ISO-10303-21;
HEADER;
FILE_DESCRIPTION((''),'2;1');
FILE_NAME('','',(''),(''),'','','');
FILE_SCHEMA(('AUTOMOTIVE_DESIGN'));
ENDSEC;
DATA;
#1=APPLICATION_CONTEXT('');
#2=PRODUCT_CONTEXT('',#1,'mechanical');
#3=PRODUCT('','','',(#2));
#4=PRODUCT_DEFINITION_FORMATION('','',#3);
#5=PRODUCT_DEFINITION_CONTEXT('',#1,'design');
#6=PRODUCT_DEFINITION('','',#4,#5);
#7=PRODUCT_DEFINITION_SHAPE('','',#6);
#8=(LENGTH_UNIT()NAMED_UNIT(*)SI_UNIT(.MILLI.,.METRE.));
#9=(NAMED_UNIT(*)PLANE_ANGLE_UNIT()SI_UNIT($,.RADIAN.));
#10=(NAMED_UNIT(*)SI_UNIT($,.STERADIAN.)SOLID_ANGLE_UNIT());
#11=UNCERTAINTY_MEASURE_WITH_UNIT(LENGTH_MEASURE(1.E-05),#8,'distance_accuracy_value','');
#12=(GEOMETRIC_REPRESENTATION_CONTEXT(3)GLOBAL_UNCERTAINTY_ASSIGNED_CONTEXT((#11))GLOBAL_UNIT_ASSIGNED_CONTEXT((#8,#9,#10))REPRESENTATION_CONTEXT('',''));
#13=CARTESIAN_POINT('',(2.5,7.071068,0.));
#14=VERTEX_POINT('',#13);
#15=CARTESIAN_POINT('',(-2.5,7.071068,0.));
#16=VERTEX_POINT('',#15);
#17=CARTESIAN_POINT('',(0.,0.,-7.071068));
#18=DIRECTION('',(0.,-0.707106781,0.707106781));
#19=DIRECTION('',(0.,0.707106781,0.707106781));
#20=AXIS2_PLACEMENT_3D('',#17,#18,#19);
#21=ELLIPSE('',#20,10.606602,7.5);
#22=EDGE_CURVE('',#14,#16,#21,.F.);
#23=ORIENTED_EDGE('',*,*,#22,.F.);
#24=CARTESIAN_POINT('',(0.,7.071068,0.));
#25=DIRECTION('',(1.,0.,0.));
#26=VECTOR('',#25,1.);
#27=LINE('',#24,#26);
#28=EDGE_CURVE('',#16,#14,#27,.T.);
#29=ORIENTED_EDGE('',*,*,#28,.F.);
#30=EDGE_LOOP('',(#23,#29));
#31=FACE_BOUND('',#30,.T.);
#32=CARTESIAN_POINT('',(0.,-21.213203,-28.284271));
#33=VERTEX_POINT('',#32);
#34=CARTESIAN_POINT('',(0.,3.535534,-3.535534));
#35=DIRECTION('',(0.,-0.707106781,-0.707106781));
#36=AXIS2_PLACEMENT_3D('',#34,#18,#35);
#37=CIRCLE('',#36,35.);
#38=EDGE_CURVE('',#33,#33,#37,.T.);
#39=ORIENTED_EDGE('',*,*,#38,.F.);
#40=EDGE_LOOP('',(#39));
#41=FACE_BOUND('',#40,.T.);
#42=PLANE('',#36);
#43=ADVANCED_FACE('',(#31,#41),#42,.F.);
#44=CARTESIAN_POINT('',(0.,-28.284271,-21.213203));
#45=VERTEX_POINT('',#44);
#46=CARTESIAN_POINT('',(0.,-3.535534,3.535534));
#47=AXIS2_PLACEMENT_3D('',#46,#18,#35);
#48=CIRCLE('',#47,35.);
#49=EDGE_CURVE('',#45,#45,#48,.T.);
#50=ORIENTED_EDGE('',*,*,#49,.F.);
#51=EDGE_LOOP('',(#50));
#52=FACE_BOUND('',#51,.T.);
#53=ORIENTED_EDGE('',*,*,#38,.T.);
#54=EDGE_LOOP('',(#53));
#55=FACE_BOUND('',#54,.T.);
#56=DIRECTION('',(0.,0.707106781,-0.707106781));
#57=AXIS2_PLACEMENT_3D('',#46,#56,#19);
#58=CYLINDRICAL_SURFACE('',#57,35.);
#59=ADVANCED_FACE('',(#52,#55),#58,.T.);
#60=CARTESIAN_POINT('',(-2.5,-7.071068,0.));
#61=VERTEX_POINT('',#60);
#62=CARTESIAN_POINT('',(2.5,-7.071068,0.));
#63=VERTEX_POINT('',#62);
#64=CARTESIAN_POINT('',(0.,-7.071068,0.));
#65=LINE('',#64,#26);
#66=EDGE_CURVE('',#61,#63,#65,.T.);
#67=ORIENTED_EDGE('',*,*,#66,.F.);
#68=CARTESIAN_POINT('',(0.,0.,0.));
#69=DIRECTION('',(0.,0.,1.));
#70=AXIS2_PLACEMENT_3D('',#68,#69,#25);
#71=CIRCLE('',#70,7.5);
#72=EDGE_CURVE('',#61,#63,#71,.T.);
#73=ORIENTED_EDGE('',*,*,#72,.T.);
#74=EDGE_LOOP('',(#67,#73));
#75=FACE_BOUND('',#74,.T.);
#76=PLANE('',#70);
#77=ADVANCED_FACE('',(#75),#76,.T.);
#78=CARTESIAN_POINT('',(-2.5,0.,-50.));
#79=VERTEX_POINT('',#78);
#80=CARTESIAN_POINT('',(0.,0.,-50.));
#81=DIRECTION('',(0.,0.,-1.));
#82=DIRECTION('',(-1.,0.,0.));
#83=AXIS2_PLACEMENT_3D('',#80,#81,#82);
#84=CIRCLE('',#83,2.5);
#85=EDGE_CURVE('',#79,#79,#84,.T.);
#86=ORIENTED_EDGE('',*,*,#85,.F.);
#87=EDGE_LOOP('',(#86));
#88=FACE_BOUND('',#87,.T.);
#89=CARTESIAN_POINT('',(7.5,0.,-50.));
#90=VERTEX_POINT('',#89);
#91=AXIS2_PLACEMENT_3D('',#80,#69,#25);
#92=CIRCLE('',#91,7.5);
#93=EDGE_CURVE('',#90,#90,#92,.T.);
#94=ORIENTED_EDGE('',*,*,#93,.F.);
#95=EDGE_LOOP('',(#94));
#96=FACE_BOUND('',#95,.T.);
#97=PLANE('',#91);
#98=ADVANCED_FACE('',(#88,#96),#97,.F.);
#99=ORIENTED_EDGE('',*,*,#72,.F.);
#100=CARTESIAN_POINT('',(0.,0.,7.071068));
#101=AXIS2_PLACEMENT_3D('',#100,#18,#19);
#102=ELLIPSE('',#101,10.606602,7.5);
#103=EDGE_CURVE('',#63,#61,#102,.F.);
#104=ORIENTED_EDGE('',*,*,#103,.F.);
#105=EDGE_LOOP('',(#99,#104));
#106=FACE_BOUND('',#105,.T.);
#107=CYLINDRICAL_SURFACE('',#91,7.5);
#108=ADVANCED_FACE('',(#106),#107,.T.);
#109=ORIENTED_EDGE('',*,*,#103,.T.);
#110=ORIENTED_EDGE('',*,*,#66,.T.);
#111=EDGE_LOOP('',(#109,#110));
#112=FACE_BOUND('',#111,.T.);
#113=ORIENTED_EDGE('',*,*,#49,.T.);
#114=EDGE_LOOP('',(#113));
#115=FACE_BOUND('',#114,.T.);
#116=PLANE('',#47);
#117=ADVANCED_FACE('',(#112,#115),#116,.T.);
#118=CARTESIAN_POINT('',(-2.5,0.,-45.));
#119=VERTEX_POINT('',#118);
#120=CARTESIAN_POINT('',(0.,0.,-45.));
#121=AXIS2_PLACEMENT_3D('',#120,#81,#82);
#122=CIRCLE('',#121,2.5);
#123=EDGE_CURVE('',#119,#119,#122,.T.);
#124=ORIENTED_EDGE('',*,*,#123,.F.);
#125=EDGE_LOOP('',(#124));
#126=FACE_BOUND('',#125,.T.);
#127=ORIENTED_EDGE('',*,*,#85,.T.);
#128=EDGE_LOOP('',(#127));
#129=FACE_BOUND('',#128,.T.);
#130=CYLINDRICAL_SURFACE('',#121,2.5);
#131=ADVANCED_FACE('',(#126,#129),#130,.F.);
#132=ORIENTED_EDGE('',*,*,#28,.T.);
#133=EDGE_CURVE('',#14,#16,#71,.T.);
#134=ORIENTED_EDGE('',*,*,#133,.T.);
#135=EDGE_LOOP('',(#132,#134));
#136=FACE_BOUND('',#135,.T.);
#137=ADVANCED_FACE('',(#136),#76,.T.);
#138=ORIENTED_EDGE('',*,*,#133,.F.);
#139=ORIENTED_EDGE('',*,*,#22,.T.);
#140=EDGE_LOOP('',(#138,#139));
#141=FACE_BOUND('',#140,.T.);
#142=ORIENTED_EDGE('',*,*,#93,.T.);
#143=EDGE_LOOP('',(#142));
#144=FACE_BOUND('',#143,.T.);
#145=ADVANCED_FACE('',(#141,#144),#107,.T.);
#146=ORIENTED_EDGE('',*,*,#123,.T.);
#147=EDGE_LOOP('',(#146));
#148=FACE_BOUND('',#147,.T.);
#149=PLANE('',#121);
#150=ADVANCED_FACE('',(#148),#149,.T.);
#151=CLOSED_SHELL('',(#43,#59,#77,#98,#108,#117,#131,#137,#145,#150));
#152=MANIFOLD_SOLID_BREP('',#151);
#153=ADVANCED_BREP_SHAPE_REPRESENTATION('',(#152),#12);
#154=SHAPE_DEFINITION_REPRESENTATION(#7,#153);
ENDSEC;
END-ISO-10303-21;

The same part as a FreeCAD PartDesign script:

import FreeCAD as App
import Part
import Sketcher
Q = App.Units.Quantity

doc = App.newDocument("Part")
params = doc.addObject("Spreadsheet::Sheet", "Params")
for row, (alias, value) in enumerate([
    ("sketch1_diameter", "15 mm"),
    ("pad1_length", "50 mm"),
    ("sketch2_diameter", "70 mm"),
    ("pad2_length", "10 mm"),
    ("sketch3_diameter", "5 mm"),
    ("pocket1_length", "5 mm"),
], start=1):
    params.set(f"A{row}", alias)
    params.set(f"B{row}", "=" + value)
    params.setAlias(f"B{row}", alias)

body = doc.addObject("PartDesign::Body", "Body")

# Sketch on XY plane
sketch1 = doc.addObject("Sketcher::SketchObject", "Sketch")
body.addObject(sketch1)
sketch1.AttachmentSupport = (doc.XY_Plane, [""])
sketch1.MapMode = "FlatFace"
sketch1.addGeometry(Part.Circle(App.Vector(0, 0, 0), App.Vector(0, 0, 1), 8), False)
sketch1.addConstraint([
    Sketcher.Constraint("Coincident", 0, 3, -1, 1),
    Sketcher.Constraint("Diameter", 0, Q("15 mm")),
])
sketch1.setExpression("Constraints[1]", "Params.sketch1_diameter")
pad1 = doc.addObject("PartDesign::Pad", "Pad")
body.addObject(pad1)
pad1.Profile = sketch1
pad1.setExpression("Length", "Params.pad1_length")
pad1.Reversed = True

# Sketch on an angled plane
sketch2 = doc.addObject("Sketcher::SketchObject", "Sketch001")
body.addObject(sketch2)
sketch2.Placement = App.Placement(App.Vector(0, 0, 0), App.Rotation(App.Vector(1, 0, 0), App.Vector(0, 0.707106781, 0.707106781), App.Vector(0, -0.707106781, 0.707106781), "ZXY"))
sketch2.addGeometry(Part.Circle(App.Vector(0, 0, 0), App.Vector(0, 0, 1), 35), False)
sketch2.addConstraint([
    Sketcher.Constraint("Coincident", 0, 3, -1, 1),
    Sketcher.Constraint("Diameter", 0, Q("70 mm")),
])
sketch2.setExpression("Constraints[1]", "Params.sketch2_diameter")
pad2 = doc.addObject("PartDesign::Pad", "Pad001")
body.addObject(pad2)
pad2.Profile = sketch2
pad2.setExpression("Length", "Params.pad2_length")
pad2.Midplane = True

# Sketch on XY plane
sketch3 = doc.addObject("Sketcher::SketchObject", "Sketch002")
body.addObject(sketch3)
sketch3.AttachmentSupport = (doc.XY_Plane, [""])
sketch3.MapMode = "FlatFace"
sketch3.AttachmentOffset = App.Placement(App.Vector(0, 0, -50), App.Rotation())
sketch3.addGeometry(Part.Circle(App.Vector(0, 0, 0), App.Vector(0, 0, 1), 2.5), False)
sketch3.addConstraint([
    Sketcher.Constraint("Coincident", 0, 3, -1, 1),
    Sketcher.Constraint("Diameter", 0, Q("5 mm")),
])
sketch3.setExpression("Constraints[1]", "Params.sketch3_diameter")
pocket1 = doc.addObject("PartDesign::Pocket", "Pocket")
body.addObject(pocket1)
pocket1.Profile = sketch3
pocket1.setExpression("Length", "Params.pocket1_length")
pocket1.Reversed = True

doc.recompute()
